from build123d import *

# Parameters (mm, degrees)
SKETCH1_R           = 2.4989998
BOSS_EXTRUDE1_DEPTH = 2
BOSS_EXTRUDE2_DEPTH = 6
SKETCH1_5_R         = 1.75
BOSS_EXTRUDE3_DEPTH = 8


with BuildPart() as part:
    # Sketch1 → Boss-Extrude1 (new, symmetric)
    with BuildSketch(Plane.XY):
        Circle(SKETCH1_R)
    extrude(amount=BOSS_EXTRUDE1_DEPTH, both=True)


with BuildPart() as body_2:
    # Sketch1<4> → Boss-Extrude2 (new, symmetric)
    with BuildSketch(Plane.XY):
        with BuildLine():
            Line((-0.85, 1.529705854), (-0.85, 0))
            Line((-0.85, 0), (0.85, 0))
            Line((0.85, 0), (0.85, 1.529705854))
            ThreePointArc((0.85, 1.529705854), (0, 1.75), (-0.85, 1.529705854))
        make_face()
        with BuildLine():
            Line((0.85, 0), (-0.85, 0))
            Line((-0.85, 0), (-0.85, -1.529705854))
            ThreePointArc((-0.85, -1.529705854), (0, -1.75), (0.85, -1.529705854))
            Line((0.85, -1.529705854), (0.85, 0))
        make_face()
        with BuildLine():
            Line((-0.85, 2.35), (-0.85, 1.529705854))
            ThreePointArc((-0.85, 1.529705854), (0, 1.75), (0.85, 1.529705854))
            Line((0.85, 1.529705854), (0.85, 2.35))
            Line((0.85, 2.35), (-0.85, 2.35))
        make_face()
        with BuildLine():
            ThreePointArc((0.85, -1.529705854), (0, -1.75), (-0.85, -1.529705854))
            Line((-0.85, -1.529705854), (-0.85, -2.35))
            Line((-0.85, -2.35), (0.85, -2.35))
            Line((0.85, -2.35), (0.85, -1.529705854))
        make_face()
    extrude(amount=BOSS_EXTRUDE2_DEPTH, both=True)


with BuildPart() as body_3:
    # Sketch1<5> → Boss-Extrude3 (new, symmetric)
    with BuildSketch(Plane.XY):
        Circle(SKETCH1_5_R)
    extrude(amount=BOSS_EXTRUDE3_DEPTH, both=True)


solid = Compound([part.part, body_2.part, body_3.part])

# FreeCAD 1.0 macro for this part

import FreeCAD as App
import Part
import Sketcher

V = App.Vector


def add_polygon(sketch, points):
    """Adds a closed chain of lines whose ends are joined by coincident constraints."""
    first, n = sketch.GeometryCount, len(points)
    for a, b in zip(points, points[1:] + points[:1]):
        sketch.addGeometry(Part.LineSegment(App.Vector(*a, 0), App.Vector(*b, 0)), False)
    for i in range(n):
        sketch.addConstraint(Sketcher.Constraint("Coincident", first + i, 2, first + (i + 1) % n, 1))

doc = App.newDocument("Part")
body = doc.addObject("PartDesign::Body", "Body")

# Sketch on XY plane
sketch1 = body.newObject("Sketcher::SketchObject", "Sketch")
sketch1.AttachmentSupport = (doc.getObject("XY_Plane"), [""])
sketch1.MapMode = "FlatFace"
sketch1.addGeometry(Part.Circle(V(0, 0, 0), V(0, 0, 1), 2.5), False)
sketch1.addConstraint(Sketcher.Constraint("Coincident", 0, 3, -1, 1))
sketch1.addConstraint(Sketcher.Constraint("Diameter", 0, 4.998))
pad1 = body.newObject("PartDesign::Pad", "Pad")
pad1.Profile = sketch1
pad1.Length = 4
pad1.Midplane = True
body2 = doc.addObject("PartDesign::Body", "Body001")

# Sketch on XY plane
sketch2 = body2.newObject("Sketcher::SketchObject", "Sketch001")
sketch2.AttachmentSupport = (doc.getObject("XY_Plane001"), [""])
sketch2.MapMode = "FlatFace"
add_polygon(sketch2, [(0.8, 2.4), (-0.8, 2.4), (-0.8, -2.4), (0.8, -2.4)])  # lines 0-3
sketch2.addConstraint(Sketcher.Constraint("Horizontal", 0))
sketch2.addConstraint(Sketcher.Constraint("Vertical", 1))
sketch2.addConstraint(Sketcher.Constraint("Horizontal", 2))
sketch2.addConstraint(Sketcher.Constraint("Vertical", 3))
sketch2.addConstraint(Sketcher.Constraint("Symmetric", 0, 2, 2, 2, -1, 1))
sketch2.addConstraint(Sketcher.Constraint("DistanceX", 0, 2, 0, 1, 1.7))
sketch2.addConstraint(Sketcher.Constraint("DistanceY", 1, 2, 1, 1, 4.7))
pad2 = body2.newObject("PartDesign::Pad", "Pad001")
pad2.Profile = sketch2
pad2.Length = 12
pad2.Midplane = True
body3 = doc.addObject("PartDesign::Body", "Body002")

# Sketch on XY plane
sketch3 = body3.newObject("Sketcher::SketchObject", "Sketch002")
sketch3.AttachmentSupport = (doc.getObject("XY_Plane002"), [""])
sketch3.MapMode = "FlatFace"
sketch3.addGeometry(Part.Circle(V(0, 0, 0), V(0, 0, 1), 1.8), False)
sketch3.addConstraint(Sketcher.Constraint("Coincident", 0, 3, -1, 1))
sketch3.addConstraint(Sketcher.Constraint("Diameter", 0, 3.5))
pad3 = body3.newObject("PartDesign::Pad", "Pad002")
pad3.Profile = sketch3
pad3.Length = 16
pad3.Midplane = True

doc.recompute()
